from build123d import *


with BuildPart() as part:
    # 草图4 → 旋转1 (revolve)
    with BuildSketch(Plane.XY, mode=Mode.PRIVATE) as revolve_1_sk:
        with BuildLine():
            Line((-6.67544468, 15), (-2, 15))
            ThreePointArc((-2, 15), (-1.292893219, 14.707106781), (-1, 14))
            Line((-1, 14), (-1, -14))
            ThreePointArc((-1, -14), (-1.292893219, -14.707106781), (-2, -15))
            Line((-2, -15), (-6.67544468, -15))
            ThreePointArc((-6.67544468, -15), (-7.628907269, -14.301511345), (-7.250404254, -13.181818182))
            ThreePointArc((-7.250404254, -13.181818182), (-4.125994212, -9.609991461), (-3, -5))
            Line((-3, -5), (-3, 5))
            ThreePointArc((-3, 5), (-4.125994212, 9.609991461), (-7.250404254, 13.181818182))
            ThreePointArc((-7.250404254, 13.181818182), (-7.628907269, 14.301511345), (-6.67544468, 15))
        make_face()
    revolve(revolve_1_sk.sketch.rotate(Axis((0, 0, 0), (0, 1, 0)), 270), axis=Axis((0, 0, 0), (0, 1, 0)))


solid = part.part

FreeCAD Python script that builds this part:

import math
import FreeCAD as App
import Part
import Sketcher

V = App.Vector
Q = App.Units.Quantity

doc = App.newDocument("Part")
body = doc.addObject("PartDesign::Body", "Body")

sketch1 = body.newObject("Sketcher::SketchObject", "Sketch")
sketch1.AttachmentSupport = (doc.getObject("XY_Plane"), [""])
sketch1.MapMode = "FlatFace"
sketch1.addGeometry([
    Part.LineSegment(V(-2, 15, 0), V(-6.7, 15, 0)),
    Part.ArcOfCircle(Part.Circle(V(-6.7, 14, 0), V(0, 0, 1), 1), math.radians(90), math.radians(235)),
    Part.ArcOfCircle(Part.Circle(V(-13, 5, 0), V(0, 0, 1), 10), math.radians(0), math.radians(55)),
    Part.LineSegment(V(-3, 5, 0), V(-3, -5, 0)),
    Part.ArcOfCircle(Part.Circle(V(-13, -5, 0), V(0, 0, 1), 10), math.radians(-55), math.radians(0)),
    Part.ArcOfCircle(Part.Circle(V(-6.7, -14, 0), V(0, 0, 1), 1), math.radians(125), math.radians(270)),
    Part.LineSegment(V(-6.7, -15, 0), V(-2, -15, 0)),
    Part.ArcOfCircle(Part.Circle(V(-2, -14, 0), V(0, 0, 1), 1), math.radians(-90), math.radians(0)),
    Part.LineSegment(V(-1, -14, 0), V(-1, 14, 0)),
    Part.ArcOfCircle(Part.Circle(V(-2, 14, 0), V(0, 0, 1), 1), math.radians(0), math.radians(90)),
], False)
sketch1.addConstraint([
    Sketcher.Constraint("Tangent", 0, 2, 1, 1),
    Sketcher.Constraint("Tangent", 1, 2, 2, 2),
    Sketcher.Constraint("Tangent", 2, 1, 3, 1),
    Sketcher.Constraint("Tangent", 3, 2, 4, 2),
    Sketcher.Constraint("Tangent", 4, 1, 5, 1),
    Sketcher.Constraint("Tangent", 5, 2, 6, 1),
    Sketcher.Constraint("Tangent", 6, 2, 7, 1),
    Sketcher.Constraint("Tangent", 7, 2, 8, 1),
    Sketcher.Constraint("Tangent", 8, 2, 9, 1),
    Sketcher.Constraint("Tangent", 9, 2, 0, 1),
    Sketcher.Constraint("Horizontal", 0),
    Sketcher.Constraint("Vertical", 3),
    Sketcher.Constraint("Horizontal", 6),
    Sketcher.Constraint("Vertical", 8),
    Sketcher.Constraint("Equal", 2, 4),
    Sketcher.Constraint("Equal", 1, 5),
    Sketcher.Constraint("Equal", 5, 7),
    Sketcher.Constraint("Equal", 7, 9),
    Sketcher.Constraint("Symmetric", 1, 3, 5, 3, -1),
    Sketcher.Constraint("Radius", 1, Q("1 mm")),
    Sketcher.Constraint("Radius", 2, Q("10 mm")),
    Sketcher.Constraint("DistanceY", 3, 2, 3, 1, Q("10 mm")),
    Sketcher.Constraint("DistanceY", 8, 1, 8, 2, Q("28 mm")),
    Sketcher.Constraint("DistanceX", 2, 3, -1, 1, Q("13 mm")),
    Sketcher.Constraint("DistanceX", 7, 3, -1, 1, Q("2 mm")),
])
revolution = body.newObject("PartDesign::Revolution", "Revolution")
revolution.Profile = sketch1
revolution.ReferenceAxis = (sketch1, ["V_Axis"])
revolution.Angle = 360

doc.recompute()
